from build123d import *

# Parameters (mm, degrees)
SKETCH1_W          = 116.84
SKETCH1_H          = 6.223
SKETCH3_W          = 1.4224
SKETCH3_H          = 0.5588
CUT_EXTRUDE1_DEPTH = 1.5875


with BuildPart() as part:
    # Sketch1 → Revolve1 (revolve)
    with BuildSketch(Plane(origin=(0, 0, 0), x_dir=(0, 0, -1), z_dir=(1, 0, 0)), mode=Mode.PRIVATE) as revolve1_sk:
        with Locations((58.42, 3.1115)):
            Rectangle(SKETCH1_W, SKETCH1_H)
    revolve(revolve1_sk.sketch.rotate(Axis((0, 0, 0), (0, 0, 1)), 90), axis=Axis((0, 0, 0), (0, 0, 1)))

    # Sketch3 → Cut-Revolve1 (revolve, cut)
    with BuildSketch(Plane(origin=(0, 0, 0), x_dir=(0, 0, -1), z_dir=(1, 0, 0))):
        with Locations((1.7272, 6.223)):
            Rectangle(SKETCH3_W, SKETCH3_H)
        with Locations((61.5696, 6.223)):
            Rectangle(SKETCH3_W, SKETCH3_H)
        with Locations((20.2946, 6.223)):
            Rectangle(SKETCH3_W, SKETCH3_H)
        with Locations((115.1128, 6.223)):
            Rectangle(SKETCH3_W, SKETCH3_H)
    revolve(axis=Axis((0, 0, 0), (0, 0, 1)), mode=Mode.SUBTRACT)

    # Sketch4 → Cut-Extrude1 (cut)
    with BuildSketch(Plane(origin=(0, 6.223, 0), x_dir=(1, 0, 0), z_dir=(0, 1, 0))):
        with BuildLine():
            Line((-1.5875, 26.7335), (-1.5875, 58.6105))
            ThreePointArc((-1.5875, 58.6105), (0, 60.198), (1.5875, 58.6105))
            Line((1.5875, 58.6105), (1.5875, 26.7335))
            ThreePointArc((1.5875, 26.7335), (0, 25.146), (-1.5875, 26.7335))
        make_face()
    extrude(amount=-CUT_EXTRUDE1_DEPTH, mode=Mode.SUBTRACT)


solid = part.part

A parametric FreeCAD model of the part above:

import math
import FreeCAD as App
import Part
import Sketcher

V = App.Vector
Q = App.Units.Quantity


def add_polygon(sketch, points):
    """Adds a closed chain of lines whose ends are joined by coincident constraints."""
    first, n = sketch.GeometryCount, len(points)
    for a, b in zip(points, points[1:] + points[:1]):
        sketch.addGeometry(Part.LineSegment(App.Vector(*a, 0), App.Vector(*b, 0)), False)
    for i in range(n):
        sketch.addConstraint(Sketcher.Constraint("Coincident", first + i, 2, first + (i + 1) % n, 1))

doc = App.newDocument("Part")
body = doc.addObject("PartDesign::Body", "Body")

# Sketch on YZ plane
sketch1 = body.newObject("Sketcher::SketchObject", "Sketch")
sketch1.AttachmentSupport = (doc.getObject("YZ_Plane"), [""])
sketch1.MapMode = "FlatFace"
add_polygon(sketch1, [(6, 0), (0, 0), (0, -117), (6, -117)])  # lines 0-3
sketch1.addConstraint([
    Sketcher.Constraint("Horizontal", 0),
    Sketcher.Constraint("Vertical", 1),
    Sketcher.Constraint("Horizontal", 2),
    Sketcher.Constraint("Vertical", 3),
    Sketcher.Constraint("Coincident", 0, 2, -1, 1),
    Sketcher.Constraint("DistanceY", 1, 2, 1, 1, Q("4.6 in")),
    Sketcher.Constraint("DistanceX", 0, 2, 0, 1, Q("0.245 in")),
])
revolution = body.newObject("PartDesign::Revolution", "Revolution")
revolution.Profile = sketch1
revolution.ReferenceAxis = (sketch1, ["V_Axis"])
revolution.Angle = 360

# Sketch on YZ plane
sketch2 = body.newObject("Sketcher::SketchObject", "Sketch001")
sketch2.AttachmentSupport = (doc.getObject("YZ_Plane"), [""])
sketch2.MapMode = "FlatFace"
add_polygon(sketch2, [(6.5, -1), (5.9, -1), (5.9, -2.4), (6.5, -2.4)])  # lines 0-3
add_polygon(sketch2, [(6.5, -60.9), (5.9, -60.9), (5.9, -62.3), (6.5, -62.3)])  # lines 4-7
add_polygon(sketch2, [(6.5, -19.6), (5.9, -19.6), (5.9, -21), (6.5, -21)])  # lines 8-11
add_polygon(sketch2, [(6.5, -114.4), (5.9, -114.4), (5.9, -115.8), (6.5, -115.8)])  # lines 12-15
sketch2.addConstraint([
    Sketcher.Constraint("Horizontal", 0),
    Sketcher.Constraint("Vertical", 1),
    Sketcher.Constraint("Horizontal", 2),
    Sketcher.Constraint("Vertical", 3),
    Sketcher.Constraint("Horizontal", 4),
    Sketcher.Constraint("Vertical", 5),
    Sketcher.Constraint("Horizontal", 6),
    Sketcher.Constraint("Vertical", 7),
    Sketcher.Constraint("Horizontal", 8),
    Sketcher.Constraint("Vertical", 9),
    Sketcher.Constraint("Horizontal", 10),
    Sketcher.Constraint("Vertical", 11),
    Sketcher.Constraint("Horizontal", 12),
    Sketcher.Constraint("Vertical", 13),
    Sketcher.Constraint("Horizontal", 14),
    Sketcher.Constraint("Vertical", 15),
    Sketcher.Constraint("Vertical", 1, 2, 4, 2),
    Sketcher.Constraint("Vertical", 3, 2, 6, 2),
    Sketcher.Constraint("Vertical", 5, 2, 8, 2),
    Sketcher.Constraint("Vertical", 7, 2, 10, 2),
    Sketcher.Constraint("Vertical", 9, 2, 12, 2),
    Sketcher.Constraint("Vertical", 11, 2, 14, 2),
    Sketcher.Constraint("Equal", 3, 5),
    Sketcher.Constraint("Equal", 7, 9),
    Sketcher.Constraint("Equal", 11, 13),
    Sketcher.Constraint("DistanceY", 4, 2, 1, 2, Q("2.3 in")),
    Sketcher.Constraint("DistanceX", 0, 2, 0, 1, Q("0.022 in")),
    Sketcher.Constraint("DistanceY", 1, 2, 1, 1, Q("0.056 in")),
    Sketcher.Constraint("DistanceY", 0, 2, -1, 1, Q("0.04 in")),
    Sketcher.Constraint("DistanceY", 13, 2, -1, 1, Q("4.56 in")),
    Sketcher.Constraint("DistanceX", -1, 1, 0, 2, Q("0.234 in")),
    Sketcher.Constraint("DistanceY", 8, 2, -1, 1, Q("0.771 in")),
])
groove = body.newObject("PartDesign::Groove", "Groove")
groove.Profile = sketch2
groove.ReferenceAxis = (sketch2, ["V_Axis"])
groove.Angle = 360

# Sketch on XZ plane
sketch3 = body.newObject("Sketcher::SketchObject", "Sketch002")
sketch3.AttachmentSupport = (doc.getObject("XZ_Plane"), [""])
sketch3.MapMode = "FlatFace"
sketch3.AttachmentOffset = App.Placement(V(0, 0, -0.245 * 25.4), App.Rotation())
sketch3.addGeometry([
    Part.LineSegment(V(-1.6, -58.6, 0), V(-1.6, -26.7, 0)),
    Part.ArcOfCircle(Part.Circle(V(0, -26.7, 0), V(0, 0, 1), 1.6), math.radians(0), math.radians(180)),
    Part.LineSegment(V(1.6, -26.7, 0), V(1.6, -58.6, 0)),
    Part.ArcOfCircle(Part.Circle(V(0, -58.6, 0), V(0, 0, 1), 1.6), math.radians(180), math.radians(360)),
], False)
sketch3.addConstraint([
    Sketcher.Constraint("Tangent", 0, 2, 1, 2),
    Sketcher.Constraint("Tangent", 1, 1, 2, 1),
    Sketcher.Constraint("Tangent", 2, 2, 3, 2),
    Sketcher.Constraint("Tangent", 3, 1, 0, 1),
    Sketcher.Constraint("Vertical", 0),
    Sketcher.Constraint("Vertical", 2),
    Sketcher.Constraint("PointOnObject", 1, 3, -2),
    Sketcher.Constraint("Radius", 1, Q("0.0625 in")),
    Sketcher.Constraint("DistanceY", 0, 1, 0, 2, Q("1.255 in")),
    Sketcher.Constraint("DistanceY", 1, 3, -1, 1, Q("1.0525 in")),
])
pocket1 = body.newObject("PartDesign::Pocket", "Pocket")
pocket1.Profile = sketch3
pocket1.Length = Q("0.0625 in")
pocket1.Reversed = True

doc.recompute()
